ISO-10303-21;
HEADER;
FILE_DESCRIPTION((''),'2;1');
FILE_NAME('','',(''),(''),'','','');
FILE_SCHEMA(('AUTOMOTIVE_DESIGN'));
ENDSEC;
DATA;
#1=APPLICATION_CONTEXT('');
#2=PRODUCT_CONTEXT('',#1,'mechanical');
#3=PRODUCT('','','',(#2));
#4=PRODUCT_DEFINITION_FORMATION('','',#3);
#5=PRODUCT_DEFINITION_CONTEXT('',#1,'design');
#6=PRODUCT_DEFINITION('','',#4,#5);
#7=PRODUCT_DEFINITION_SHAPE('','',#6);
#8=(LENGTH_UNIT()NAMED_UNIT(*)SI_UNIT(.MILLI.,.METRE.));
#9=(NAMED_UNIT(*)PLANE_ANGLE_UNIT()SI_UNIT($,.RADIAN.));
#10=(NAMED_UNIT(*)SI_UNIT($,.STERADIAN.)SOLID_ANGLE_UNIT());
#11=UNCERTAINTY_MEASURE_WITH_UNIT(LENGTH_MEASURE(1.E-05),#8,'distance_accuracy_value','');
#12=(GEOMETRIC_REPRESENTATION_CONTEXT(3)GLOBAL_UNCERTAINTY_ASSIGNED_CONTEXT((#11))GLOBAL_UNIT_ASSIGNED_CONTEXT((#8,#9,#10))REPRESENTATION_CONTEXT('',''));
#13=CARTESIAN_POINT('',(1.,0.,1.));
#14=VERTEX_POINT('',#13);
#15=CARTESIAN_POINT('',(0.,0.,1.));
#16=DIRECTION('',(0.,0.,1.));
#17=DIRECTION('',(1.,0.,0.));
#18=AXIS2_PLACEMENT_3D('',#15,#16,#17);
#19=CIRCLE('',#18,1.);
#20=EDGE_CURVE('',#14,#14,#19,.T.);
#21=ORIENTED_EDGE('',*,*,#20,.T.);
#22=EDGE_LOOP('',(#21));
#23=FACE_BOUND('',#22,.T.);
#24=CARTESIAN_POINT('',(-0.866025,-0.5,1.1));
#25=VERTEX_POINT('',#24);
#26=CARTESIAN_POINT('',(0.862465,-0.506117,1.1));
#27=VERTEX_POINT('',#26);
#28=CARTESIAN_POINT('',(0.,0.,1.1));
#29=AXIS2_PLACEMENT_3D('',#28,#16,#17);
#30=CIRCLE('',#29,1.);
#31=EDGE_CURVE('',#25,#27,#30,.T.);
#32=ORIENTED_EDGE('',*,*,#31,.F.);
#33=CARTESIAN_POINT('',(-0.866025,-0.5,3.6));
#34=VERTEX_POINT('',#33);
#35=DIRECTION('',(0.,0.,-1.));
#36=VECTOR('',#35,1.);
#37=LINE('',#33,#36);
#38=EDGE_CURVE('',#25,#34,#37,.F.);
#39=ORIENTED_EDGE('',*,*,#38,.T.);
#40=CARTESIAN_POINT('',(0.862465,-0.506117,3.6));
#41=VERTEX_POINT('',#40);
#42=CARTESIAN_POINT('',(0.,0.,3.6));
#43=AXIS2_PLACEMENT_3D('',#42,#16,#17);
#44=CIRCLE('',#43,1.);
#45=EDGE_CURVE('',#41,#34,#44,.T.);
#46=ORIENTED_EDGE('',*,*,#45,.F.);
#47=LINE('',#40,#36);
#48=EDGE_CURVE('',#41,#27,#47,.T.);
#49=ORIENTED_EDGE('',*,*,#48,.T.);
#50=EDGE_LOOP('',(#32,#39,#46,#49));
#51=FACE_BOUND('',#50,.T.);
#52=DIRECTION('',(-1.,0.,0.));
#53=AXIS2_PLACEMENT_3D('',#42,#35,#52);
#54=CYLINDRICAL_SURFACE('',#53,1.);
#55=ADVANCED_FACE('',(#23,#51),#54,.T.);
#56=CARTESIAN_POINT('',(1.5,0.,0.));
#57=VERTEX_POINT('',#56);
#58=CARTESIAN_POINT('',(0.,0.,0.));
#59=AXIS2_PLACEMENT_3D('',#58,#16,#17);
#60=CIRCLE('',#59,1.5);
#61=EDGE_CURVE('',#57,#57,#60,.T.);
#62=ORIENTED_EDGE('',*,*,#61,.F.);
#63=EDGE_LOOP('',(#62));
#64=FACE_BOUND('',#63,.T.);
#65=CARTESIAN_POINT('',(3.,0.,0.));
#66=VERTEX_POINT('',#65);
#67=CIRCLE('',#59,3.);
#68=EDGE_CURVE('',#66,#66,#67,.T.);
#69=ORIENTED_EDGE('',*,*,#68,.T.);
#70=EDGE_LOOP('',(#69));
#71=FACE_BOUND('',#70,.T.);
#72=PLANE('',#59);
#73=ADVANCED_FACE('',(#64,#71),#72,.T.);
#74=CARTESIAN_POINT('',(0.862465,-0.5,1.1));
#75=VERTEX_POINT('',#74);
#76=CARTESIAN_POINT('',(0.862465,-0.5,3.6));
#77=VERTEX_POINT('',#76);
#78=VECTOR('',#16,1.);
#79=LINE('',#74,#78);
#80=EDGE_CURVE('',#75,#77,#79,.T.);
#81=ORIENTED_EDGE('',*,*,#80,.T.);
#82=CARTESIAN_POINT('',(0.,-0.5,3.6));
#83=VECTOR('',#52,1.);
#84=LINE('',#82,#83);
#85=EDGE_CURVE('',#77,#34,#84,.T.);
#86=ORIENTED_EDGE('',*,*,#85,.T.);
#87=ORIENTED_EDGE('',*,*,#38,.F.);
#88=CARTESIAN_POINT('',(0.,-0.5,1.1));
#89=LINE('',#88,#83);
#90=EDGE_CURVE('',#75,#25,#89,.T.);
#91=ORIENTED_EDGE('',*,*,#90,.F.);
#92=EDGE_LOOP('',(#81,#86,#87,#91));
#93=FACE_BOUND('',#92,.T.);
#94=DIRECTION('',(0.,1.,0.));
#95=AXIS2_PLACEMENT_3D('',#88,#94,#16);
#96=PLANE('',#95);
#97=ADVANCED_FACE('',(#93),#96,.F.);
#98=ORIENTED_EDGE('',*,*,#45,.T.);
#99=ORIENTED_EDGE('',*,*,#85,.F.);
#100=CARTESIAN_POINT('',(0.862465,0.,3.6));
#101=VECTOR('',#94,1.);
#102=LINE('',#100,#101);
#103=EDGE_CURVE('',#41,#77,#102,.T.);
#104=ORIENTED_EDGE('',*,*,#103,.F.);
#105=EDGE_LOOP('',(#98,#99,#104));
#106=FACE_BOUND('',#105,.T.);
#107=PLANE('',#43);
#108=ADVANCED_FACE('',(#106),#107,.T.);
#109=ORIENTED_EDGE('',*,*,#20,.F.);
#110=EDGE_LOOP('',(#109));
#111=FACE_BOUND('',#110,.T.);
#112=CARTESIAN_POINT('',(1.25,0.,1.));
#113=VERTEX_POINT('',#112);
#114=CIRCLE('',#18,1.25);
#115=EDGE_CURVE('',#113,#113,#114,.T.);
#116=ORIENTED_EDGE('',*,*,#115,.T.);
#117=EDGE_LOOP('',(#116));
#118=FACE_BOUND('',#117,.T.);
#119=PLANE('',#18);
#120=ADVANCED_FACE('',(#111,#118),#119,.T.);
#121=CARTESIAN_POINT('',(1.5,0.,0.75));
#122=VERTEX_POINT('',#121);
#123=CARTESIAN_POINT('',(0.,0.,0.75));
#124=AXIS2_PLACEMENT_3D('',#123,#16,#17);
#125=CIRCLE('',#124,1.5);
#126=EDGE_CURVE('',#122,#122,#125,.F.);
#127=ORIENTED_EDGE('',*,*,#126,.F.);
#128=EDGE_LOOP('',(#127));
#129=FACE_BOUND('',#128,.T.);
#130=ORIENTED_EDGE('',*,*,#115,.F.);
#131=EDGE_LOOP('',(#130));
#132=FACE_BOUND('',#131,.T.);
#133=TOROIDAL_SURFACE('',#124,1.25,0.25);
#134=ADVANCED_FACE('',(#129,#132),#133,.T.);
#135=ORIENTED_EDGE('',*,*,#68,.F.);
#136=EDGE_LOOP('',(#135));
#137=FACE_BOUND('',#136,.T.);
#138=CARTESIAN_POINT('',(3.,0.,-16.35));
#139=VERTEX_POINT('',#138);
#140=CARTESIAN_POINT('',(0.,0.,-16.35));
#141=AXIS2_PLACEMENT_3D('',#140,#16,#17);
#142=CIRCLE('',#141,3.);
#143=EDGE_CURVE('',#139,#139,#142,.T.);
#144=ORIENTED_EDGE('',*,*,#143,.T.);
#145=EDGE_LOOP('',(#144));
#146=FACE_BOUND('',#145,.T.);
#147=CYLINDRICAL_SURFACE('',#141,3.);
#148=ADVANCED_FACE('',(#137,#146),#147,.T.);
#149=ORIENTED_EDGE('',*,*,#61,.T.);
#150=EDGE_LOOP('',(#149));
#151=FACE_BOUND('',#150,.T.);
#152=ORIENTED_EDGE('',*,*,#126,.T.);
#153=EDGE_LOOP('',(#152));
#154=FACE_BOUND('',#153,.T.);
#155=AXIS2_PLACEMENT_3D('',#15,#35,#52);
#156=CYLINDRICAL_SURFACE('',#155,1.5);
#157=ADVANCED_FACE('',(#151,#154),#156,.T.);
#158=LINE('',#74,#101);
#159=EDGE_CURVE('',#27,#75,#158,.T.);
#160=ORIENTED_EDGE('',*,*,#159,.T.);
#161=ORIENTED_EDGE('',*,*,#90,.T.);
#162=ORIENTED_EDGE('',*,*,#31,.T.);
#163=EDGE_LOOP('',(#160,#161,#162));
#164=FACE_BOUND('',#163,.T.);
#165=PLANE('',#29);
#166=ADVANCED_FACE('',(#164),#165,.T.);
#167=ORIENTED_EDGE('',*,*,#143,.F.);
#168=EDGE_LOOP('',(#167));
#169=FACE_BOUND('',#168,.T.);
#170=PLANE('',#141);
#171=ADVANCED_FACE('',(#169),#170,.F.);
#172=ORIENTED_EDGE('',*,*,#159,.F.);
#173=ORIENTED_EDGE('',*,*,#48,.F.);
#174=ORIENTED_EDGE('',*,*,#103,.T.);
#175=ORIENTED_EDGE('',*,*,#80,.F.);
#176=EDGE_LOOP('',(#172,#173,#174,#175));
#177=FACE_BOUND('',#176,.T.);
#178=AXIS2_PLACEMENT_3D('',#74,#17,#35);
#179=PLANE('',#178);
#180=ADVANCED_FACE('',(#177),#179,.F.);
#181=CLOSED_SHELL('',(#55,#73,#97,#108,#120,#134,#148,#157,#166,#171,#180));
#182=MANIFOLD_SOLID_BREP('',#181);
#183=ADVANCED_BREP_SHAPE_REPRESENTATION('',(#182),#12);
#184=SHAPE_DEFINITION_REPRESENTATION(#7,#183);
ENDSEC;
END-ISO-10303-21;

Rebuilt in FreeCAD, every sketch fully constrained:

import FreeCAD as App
import Part
import Sketcher
from FreeCAD import Vector


def edges_at(feature, points):
    """Names of the edges that pass closest to the given points."""
    edges = feature.Shape.Edges
    near = lambda p: min(range(len(edges)), key=lambda i: edges[i].distToShape(Part.Vertex(*p))[0])
    return sorted({f"Edge{near(p) + 1}" for p in points})


def add_polygon(sketch, points):
    """Adds a closed chain of lines whose ends are joined by coincident constraints."""
    first, n = sketch.GeometryCount, len(points)
    for a, b in zip(points, points[1:] + points[:1]):
        sketch.addGeometry(Part.LineSegment(App.Vector(*a, 0), App.Vector(*b, 0)), False)
    for i in range(n):
        sketch.addConstraint(Sketcher.Constraint("Coincident", first + i, 2, first + (i + 1) % n, 1))

doc = App.newDocument("Part")
body = doc.addObject("PartDesign::Body", "Body")

# Sketch on XY plane
sketch1 = doc.addObject("Sketcher::SketchObject", "Sketch")
body.addObject(sketch1)
sketch1.AttachmentSupport = (doc.XY_Plane, [""])
sketch1.MapMode = "FlatFace"
sketch1.addGeometry(Part.Circle(Vector(0, 0, 0), Vector(0, 0, 1), 3), False)
sketch1.addConstraint(Sketcher.Constraint("Coincident", 0, 3, -1, 1))
sketch1.addConstraint(Sketcher.Constraint("Diameter", 0, 6.0))
pad1 = doc.addObject("PartDesign::Pad", "Pad")
body.addObject(pad1)
pad1.Profile = sketch1
pad1.Length = 16.35
pad1.Reversed = True

# Sketch on XY plane
sketch2 = doc.addObject("Sketcher::SketchObject", "Sketch001")
body.addObject(sketch2)
sketch2.AttachmentSupport = (doc.XY_Plane, [""])
sketch2.MapMode = "FlatFace"
sketch2.addGeometry(Part.Circle(Vector(0, 0, 0), Vector(0, 0, 1), 1.5), False)
sketch2.addConstraint(Sketcher.Constraint("Coincident", 0, 3, -1, 1))
sketch2.addConstraint(Sketcher.Constraint("Diameter", 0, 3.0))
pad2 = doc.addObject("PartDesign::Pad", "Pad001")
body.addObject(pad2)
pad2.Profile = sketch2
pad2.Length = 1

# Sketch on XY plane
sketch3 = doc.addObject("Sketcher::SketchObject", "Sketch002")
body.addObject(sketch3)
sketch3.AttachmentSupport = (doc.XY_Plane, [""])
sketch3.MapMode = "FlatFace"
sketch3.AttachmentOffset = App.Placement(Vector(0, 0, 1), App.Rotation())
sketch3.addGeometry(Part.Circle(Vector(0, 0, 0), Vector(0, 0, 1), 1), False)
sketch3.addConstraint(Sketcher.Constraint("Coincident", 0, 3, -1, 1))
sketch3.addConstraint(Sketcher.Constraint("Diameter", 0, 2.0))
pad3 = doc.addObject("PartDesign::Pad", "Pad002")
body.addObject(pad3)
pad3.Profile = sketch3
pad3.Length = 2.6

# Sketch on XY plane
sketch4 = doc.addObject("Sketcher::SketchObject", "Sketch003")
body.addObject(sketch4)
sketch4.AttachmentSupport = (doc.XY_Plane, [""])
sketch4.MapMode = "FlatFace"
sketch4.AttachmentOffset = App.Placement(Vector(0, 0, 3.6), App.Rotation())
add_polygon(sketch4, [(0.862465, -0.5), (-0.869367, -0.5), (-0.869367, -1), (0.862465, -1)])  # lines 0-3
sketch4.addConstraint(Sketcher.Constraint("Horizontal", 0))
sketch4.addConstraint(Sketcher.Constraint("Vertical", 1))
sketch4.addConstraint(Sketcher.Constraint("Horizontal", 2))
sketch4.addConstraint(Sketcher.Constraint("Vertical", 3))
sketch4.addConstraint(Sketcher.Constraint("DistanceY", 1, 2, 1, 1, 0.5))
sketch4.addConstraint(Sketcher.Constraint("DistanceY", 1, 2, -1, 1, 1.0))
sketch4.addConstraint(Sketcher.Constraint("DistanceX", 0, 2, 0, 1, 1.731831))
sketch4.addConstraint(Sketcher.Constraint("DistanceX", 0, 2, -1, 1, 0.869367))
pocket1 = doc.addObject("PartDesign::Pocket", "Pocket")
body.addObject(pocket1)
pocket1.Profile = sketch4
pocket1.Length = 2.5
doc.recompute()

fillet = doc.addObject("PartDesign::Fillet", "Fillet")
body.addObject(fillet)
fillet.Base = (pocket1, edges_at(pocket1, [(-1.5, 0, 1)]))
fillet.Radius = 0.25

doc.recompute()
